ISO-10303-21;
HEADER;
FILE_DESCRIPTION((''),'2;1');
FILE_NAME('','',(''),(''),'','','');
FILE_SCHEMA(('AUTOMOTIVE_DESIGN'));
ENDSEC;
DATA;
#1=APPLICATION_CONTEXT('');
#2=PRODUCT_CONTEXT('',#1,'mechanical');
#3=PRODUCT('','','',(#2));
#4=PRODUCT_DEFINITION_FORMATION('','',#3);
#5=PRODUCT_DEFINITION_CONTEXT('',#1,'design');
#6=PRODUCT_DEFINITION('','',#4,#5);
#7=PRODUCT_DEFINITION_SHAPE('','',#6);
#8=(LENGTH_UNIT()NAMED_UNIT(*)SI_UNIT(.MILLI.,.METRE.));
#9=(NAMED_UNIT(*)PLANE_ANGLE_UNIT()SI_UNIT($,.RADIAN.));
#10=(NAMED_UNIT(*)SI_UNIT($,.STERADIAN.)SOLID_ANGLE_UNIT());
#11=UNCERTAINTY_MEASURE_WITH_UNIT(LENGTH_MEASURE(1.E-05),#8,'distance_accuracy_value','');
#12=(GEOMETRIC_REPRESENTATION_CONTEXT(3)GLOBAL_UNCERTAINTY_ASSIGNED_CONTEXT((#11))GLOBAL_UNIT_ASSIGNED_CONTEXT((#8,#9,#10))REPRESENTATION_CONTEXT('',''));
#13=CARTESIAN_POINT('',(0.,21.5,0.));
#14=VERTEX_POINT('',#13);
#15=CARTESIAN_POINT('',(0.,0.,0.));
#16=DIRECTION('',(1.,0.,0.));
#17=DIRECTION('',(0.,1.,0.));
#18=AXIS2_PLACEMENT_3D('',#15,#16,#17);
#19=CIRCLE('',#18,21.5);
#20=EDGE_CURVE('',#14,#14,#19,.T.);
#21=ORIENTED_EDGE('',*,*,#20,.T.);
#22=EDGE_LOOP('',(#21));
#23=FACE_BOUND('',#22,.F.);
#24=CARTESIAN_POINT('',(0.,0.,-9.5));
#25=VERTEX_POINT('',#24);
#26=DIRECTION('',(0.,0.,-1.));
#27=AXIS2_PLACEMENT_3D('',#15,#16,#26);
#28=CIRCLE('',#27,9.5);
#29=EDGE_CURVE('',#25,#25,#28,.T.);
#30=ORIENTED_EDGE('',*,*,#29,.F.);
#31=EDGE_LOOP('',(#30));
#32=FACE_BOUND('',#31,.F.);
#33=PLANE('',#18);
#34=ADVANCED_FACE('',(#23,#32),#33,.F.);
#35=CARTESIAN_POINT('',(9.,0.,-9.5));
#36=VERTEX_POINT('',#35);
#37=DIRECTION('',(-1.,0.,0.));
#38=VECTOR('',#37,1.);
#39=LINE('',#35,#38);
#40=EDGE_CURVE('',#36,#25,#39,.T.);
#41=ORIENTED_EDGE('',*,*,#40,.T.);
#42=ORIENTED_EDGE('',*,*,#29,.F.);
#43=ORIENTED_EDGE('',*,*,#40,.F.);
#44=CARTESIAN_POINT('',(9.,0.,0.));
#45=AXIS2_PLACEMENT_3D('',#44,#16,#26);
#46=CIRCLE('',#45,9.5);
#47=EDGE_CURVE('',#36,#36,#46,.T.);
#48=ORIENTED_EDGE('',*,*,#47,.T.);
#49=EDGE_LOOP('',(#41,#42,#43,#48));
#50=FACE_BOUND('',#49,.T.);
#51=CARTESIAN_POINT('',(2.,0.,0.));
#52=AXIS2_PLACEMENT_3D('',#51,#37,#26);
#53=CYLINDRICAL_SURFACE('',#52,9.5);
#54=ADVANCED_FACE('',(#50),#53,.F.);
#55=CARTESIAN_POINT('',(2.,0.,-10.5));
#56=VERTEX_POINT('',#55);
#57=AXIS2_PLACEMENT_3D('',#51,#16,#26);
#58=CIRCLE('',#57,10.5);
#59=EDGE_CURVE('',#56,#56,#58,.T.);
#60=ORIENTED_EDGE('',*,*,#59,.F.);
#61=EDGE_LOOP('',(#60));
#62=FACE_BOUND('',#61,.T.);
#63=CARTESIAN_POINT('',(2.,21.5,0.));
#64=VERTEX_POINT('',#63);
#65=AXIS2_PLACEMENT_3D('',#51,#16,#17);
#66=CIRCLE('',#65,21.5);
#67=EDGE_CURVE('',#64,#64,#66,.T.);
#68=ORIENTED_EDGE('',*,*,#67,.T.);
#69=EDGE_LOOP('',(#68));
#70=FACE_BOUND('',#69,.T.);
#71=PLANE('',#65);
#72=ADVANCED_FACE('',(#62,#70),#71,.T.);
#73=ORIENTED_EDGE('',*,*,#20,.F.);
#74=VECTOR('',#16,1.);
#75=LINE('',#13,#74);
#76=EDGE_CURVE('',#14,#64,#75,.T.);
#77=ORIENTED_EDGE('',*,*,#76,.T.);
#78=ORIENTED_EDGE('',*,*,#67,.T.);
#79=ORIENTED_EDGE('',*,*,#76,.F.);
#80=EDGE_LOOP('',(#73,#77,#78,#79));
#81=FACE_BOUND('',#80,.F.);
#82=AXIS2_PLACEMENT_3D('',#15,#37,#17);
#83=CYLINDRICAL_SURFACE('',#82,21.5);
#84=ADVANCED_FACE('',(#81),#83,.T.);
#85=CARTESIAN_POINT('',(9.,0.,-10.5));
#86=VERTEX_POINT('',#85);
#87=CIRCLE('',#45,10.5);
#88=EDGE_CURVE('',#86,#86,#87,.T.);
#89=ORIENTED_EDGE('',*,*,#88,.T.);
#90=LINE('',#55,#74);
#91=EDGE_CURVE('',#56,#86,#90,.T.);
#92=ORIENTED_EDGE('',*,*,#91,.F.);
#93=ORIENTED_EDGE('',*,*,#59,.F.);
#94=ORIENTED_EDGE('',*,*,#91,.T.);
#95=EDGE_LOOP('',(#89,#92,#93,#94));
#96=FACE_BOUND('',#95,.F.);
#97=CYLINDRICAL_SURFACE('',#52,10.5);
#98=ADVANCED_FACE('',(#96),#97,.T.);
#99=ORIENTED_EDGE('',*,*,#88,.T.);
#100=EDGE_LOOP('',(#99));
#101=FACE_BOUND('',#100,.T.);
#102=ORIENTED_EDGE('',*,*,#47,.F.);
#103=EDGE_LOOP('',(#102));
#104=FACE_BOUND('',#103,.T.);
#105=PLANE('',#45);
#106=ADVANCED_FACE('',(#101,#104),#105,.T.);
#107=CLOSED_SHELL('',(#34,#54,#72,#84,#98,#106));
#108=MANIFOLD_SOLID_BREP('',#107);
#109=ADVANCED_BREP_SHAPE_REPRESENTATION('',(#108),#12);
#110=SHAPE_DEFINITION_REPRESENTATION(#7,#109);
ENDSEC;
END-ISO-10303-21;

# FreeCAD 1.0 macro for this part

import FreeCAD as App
import Part
import Sketcher
Q = App.Units.Quantity

doc = App.newDocument("Part")
params = doc.addObject("Spreadsheet::Sheet", "Params")
for row, (alias, value) in enumerate([
    ("sketch1_diameter", "43 mm"),
    ("pad1_length", "2 mm"),
    ("sketch2_diameter", "19 mm"),
    ("pocket1_length", "2 mm"),
    ("sketch3_diameter", "21 mm"),
    ("sketch3_diameter2", "19 mm"),
    ("pad2_length", "7 mm"),
], start=1):
    params.set(f"A{row}", alias)
    params.set(f"B{row}", "=" + value)
    params.setAlias(f"B{row}", alias)

body = doc.addObject("PartDesign::Body", "Body")

# Sketch on YZ plane
sketch1 = body.newObject("Sketcher::SketchObject", "Sketch")
sketch1.AttachmentSupport = (doc.getObject("YZ_Plane"), [""])
sketch1.MapMode = "FlatFace"
sketch1.addGeometry(Part.Circle(App.Vector(0, 0, 0), App.Vector(0, 0, 1), 22), False)
sketch1.addConstraint([
    Sketcher.Constraint("Coincident", 0, 3, -1, 1),
    Sketcher.Constraint("Diameter", 0, Q("43 mm")),
])
sketch1.setExpression("Constraints[1]", "Params.sketch1_diameter")
pad1 = body.newObject("PartDesign::Pad", "Pad")
pad1.Profile = sketch1
pad1.setExpression("Length", "Params.pad1_length")

# Sketch on YZ plane
sketch2 = body.newObject("Sketcher::SketchObject", "Sketch001")
sketch2.AttachmentSupport = (doc.getObject("YZ_Plane"), [""])
sketch2.MapMode = "FlatFace"
sketch2.AttachmentOffset = App.Placement(App.Vector(0, 0, 2), App.Rotation())
sketch2.addGeometry(Part.Circle(App.Vector(0, 0, 0), App.Vector(0, 0, 1), 10), False)
sketch2.addConstraint([
    Sketcher.Constraint("Coincident", 0, 3, -1, 1),
    Sketcher.Constraint("Diameter", 0, Q("19 mm")),
])
sketch2.setExpression("Constraints[1]", "Params.sketch2_diameter")
pocket1 = body.newObject("PartDesign::Pocket", "Pocket")
pocket1.Profile = sketch2
pocket1.setExpression("Length", "Params.pocket1_length")

# Sketch on YZ plane
sketch3 = body.newObject("Sketcher::SketchObject", "Sketch002")
sketch3.AttachmentSupport = (doc.getObject("YZ_Plane"), [""])
sketch3.MapMode = "FlatFace"
sketch3.AttachmentOffset = App.Placement(App.Vector(0, 0, 2), App.Rotation())
sketch3.addGeometry([
    Part.Circle(App.Vector(0, 0, 0), App.Vector(0, 0, 1), 10),
    Part.Circle(App.Vector(0, 0, 0), App.Vector(0, 0, 1), 10),
], False)
sketch3.addConstraint([
    Sketcher.Constraint("Coincident", 0, 3, -1, 1),
    Sketcher.Constraint("Coincident", 1, 3, -1, 1),
    Sketcher.Constraint("Diameter", 0, Q("21 mm")),
    Sketcher.Constraint("Diameter", 1, Q("19 mm")),
])
sketch3.setExpression("Constraints[2]", "Params.sketch3_diameter")
sketch3.setExpression("Constraints[3]", "Params.sketch3_diameter2")
pad2 = body.newObject("PartDesign::Pad", "Pad001")
pad2.Profile = sketch3
pad2.setExpression("Length", "Params.pad2_length")

doc.recompute()
